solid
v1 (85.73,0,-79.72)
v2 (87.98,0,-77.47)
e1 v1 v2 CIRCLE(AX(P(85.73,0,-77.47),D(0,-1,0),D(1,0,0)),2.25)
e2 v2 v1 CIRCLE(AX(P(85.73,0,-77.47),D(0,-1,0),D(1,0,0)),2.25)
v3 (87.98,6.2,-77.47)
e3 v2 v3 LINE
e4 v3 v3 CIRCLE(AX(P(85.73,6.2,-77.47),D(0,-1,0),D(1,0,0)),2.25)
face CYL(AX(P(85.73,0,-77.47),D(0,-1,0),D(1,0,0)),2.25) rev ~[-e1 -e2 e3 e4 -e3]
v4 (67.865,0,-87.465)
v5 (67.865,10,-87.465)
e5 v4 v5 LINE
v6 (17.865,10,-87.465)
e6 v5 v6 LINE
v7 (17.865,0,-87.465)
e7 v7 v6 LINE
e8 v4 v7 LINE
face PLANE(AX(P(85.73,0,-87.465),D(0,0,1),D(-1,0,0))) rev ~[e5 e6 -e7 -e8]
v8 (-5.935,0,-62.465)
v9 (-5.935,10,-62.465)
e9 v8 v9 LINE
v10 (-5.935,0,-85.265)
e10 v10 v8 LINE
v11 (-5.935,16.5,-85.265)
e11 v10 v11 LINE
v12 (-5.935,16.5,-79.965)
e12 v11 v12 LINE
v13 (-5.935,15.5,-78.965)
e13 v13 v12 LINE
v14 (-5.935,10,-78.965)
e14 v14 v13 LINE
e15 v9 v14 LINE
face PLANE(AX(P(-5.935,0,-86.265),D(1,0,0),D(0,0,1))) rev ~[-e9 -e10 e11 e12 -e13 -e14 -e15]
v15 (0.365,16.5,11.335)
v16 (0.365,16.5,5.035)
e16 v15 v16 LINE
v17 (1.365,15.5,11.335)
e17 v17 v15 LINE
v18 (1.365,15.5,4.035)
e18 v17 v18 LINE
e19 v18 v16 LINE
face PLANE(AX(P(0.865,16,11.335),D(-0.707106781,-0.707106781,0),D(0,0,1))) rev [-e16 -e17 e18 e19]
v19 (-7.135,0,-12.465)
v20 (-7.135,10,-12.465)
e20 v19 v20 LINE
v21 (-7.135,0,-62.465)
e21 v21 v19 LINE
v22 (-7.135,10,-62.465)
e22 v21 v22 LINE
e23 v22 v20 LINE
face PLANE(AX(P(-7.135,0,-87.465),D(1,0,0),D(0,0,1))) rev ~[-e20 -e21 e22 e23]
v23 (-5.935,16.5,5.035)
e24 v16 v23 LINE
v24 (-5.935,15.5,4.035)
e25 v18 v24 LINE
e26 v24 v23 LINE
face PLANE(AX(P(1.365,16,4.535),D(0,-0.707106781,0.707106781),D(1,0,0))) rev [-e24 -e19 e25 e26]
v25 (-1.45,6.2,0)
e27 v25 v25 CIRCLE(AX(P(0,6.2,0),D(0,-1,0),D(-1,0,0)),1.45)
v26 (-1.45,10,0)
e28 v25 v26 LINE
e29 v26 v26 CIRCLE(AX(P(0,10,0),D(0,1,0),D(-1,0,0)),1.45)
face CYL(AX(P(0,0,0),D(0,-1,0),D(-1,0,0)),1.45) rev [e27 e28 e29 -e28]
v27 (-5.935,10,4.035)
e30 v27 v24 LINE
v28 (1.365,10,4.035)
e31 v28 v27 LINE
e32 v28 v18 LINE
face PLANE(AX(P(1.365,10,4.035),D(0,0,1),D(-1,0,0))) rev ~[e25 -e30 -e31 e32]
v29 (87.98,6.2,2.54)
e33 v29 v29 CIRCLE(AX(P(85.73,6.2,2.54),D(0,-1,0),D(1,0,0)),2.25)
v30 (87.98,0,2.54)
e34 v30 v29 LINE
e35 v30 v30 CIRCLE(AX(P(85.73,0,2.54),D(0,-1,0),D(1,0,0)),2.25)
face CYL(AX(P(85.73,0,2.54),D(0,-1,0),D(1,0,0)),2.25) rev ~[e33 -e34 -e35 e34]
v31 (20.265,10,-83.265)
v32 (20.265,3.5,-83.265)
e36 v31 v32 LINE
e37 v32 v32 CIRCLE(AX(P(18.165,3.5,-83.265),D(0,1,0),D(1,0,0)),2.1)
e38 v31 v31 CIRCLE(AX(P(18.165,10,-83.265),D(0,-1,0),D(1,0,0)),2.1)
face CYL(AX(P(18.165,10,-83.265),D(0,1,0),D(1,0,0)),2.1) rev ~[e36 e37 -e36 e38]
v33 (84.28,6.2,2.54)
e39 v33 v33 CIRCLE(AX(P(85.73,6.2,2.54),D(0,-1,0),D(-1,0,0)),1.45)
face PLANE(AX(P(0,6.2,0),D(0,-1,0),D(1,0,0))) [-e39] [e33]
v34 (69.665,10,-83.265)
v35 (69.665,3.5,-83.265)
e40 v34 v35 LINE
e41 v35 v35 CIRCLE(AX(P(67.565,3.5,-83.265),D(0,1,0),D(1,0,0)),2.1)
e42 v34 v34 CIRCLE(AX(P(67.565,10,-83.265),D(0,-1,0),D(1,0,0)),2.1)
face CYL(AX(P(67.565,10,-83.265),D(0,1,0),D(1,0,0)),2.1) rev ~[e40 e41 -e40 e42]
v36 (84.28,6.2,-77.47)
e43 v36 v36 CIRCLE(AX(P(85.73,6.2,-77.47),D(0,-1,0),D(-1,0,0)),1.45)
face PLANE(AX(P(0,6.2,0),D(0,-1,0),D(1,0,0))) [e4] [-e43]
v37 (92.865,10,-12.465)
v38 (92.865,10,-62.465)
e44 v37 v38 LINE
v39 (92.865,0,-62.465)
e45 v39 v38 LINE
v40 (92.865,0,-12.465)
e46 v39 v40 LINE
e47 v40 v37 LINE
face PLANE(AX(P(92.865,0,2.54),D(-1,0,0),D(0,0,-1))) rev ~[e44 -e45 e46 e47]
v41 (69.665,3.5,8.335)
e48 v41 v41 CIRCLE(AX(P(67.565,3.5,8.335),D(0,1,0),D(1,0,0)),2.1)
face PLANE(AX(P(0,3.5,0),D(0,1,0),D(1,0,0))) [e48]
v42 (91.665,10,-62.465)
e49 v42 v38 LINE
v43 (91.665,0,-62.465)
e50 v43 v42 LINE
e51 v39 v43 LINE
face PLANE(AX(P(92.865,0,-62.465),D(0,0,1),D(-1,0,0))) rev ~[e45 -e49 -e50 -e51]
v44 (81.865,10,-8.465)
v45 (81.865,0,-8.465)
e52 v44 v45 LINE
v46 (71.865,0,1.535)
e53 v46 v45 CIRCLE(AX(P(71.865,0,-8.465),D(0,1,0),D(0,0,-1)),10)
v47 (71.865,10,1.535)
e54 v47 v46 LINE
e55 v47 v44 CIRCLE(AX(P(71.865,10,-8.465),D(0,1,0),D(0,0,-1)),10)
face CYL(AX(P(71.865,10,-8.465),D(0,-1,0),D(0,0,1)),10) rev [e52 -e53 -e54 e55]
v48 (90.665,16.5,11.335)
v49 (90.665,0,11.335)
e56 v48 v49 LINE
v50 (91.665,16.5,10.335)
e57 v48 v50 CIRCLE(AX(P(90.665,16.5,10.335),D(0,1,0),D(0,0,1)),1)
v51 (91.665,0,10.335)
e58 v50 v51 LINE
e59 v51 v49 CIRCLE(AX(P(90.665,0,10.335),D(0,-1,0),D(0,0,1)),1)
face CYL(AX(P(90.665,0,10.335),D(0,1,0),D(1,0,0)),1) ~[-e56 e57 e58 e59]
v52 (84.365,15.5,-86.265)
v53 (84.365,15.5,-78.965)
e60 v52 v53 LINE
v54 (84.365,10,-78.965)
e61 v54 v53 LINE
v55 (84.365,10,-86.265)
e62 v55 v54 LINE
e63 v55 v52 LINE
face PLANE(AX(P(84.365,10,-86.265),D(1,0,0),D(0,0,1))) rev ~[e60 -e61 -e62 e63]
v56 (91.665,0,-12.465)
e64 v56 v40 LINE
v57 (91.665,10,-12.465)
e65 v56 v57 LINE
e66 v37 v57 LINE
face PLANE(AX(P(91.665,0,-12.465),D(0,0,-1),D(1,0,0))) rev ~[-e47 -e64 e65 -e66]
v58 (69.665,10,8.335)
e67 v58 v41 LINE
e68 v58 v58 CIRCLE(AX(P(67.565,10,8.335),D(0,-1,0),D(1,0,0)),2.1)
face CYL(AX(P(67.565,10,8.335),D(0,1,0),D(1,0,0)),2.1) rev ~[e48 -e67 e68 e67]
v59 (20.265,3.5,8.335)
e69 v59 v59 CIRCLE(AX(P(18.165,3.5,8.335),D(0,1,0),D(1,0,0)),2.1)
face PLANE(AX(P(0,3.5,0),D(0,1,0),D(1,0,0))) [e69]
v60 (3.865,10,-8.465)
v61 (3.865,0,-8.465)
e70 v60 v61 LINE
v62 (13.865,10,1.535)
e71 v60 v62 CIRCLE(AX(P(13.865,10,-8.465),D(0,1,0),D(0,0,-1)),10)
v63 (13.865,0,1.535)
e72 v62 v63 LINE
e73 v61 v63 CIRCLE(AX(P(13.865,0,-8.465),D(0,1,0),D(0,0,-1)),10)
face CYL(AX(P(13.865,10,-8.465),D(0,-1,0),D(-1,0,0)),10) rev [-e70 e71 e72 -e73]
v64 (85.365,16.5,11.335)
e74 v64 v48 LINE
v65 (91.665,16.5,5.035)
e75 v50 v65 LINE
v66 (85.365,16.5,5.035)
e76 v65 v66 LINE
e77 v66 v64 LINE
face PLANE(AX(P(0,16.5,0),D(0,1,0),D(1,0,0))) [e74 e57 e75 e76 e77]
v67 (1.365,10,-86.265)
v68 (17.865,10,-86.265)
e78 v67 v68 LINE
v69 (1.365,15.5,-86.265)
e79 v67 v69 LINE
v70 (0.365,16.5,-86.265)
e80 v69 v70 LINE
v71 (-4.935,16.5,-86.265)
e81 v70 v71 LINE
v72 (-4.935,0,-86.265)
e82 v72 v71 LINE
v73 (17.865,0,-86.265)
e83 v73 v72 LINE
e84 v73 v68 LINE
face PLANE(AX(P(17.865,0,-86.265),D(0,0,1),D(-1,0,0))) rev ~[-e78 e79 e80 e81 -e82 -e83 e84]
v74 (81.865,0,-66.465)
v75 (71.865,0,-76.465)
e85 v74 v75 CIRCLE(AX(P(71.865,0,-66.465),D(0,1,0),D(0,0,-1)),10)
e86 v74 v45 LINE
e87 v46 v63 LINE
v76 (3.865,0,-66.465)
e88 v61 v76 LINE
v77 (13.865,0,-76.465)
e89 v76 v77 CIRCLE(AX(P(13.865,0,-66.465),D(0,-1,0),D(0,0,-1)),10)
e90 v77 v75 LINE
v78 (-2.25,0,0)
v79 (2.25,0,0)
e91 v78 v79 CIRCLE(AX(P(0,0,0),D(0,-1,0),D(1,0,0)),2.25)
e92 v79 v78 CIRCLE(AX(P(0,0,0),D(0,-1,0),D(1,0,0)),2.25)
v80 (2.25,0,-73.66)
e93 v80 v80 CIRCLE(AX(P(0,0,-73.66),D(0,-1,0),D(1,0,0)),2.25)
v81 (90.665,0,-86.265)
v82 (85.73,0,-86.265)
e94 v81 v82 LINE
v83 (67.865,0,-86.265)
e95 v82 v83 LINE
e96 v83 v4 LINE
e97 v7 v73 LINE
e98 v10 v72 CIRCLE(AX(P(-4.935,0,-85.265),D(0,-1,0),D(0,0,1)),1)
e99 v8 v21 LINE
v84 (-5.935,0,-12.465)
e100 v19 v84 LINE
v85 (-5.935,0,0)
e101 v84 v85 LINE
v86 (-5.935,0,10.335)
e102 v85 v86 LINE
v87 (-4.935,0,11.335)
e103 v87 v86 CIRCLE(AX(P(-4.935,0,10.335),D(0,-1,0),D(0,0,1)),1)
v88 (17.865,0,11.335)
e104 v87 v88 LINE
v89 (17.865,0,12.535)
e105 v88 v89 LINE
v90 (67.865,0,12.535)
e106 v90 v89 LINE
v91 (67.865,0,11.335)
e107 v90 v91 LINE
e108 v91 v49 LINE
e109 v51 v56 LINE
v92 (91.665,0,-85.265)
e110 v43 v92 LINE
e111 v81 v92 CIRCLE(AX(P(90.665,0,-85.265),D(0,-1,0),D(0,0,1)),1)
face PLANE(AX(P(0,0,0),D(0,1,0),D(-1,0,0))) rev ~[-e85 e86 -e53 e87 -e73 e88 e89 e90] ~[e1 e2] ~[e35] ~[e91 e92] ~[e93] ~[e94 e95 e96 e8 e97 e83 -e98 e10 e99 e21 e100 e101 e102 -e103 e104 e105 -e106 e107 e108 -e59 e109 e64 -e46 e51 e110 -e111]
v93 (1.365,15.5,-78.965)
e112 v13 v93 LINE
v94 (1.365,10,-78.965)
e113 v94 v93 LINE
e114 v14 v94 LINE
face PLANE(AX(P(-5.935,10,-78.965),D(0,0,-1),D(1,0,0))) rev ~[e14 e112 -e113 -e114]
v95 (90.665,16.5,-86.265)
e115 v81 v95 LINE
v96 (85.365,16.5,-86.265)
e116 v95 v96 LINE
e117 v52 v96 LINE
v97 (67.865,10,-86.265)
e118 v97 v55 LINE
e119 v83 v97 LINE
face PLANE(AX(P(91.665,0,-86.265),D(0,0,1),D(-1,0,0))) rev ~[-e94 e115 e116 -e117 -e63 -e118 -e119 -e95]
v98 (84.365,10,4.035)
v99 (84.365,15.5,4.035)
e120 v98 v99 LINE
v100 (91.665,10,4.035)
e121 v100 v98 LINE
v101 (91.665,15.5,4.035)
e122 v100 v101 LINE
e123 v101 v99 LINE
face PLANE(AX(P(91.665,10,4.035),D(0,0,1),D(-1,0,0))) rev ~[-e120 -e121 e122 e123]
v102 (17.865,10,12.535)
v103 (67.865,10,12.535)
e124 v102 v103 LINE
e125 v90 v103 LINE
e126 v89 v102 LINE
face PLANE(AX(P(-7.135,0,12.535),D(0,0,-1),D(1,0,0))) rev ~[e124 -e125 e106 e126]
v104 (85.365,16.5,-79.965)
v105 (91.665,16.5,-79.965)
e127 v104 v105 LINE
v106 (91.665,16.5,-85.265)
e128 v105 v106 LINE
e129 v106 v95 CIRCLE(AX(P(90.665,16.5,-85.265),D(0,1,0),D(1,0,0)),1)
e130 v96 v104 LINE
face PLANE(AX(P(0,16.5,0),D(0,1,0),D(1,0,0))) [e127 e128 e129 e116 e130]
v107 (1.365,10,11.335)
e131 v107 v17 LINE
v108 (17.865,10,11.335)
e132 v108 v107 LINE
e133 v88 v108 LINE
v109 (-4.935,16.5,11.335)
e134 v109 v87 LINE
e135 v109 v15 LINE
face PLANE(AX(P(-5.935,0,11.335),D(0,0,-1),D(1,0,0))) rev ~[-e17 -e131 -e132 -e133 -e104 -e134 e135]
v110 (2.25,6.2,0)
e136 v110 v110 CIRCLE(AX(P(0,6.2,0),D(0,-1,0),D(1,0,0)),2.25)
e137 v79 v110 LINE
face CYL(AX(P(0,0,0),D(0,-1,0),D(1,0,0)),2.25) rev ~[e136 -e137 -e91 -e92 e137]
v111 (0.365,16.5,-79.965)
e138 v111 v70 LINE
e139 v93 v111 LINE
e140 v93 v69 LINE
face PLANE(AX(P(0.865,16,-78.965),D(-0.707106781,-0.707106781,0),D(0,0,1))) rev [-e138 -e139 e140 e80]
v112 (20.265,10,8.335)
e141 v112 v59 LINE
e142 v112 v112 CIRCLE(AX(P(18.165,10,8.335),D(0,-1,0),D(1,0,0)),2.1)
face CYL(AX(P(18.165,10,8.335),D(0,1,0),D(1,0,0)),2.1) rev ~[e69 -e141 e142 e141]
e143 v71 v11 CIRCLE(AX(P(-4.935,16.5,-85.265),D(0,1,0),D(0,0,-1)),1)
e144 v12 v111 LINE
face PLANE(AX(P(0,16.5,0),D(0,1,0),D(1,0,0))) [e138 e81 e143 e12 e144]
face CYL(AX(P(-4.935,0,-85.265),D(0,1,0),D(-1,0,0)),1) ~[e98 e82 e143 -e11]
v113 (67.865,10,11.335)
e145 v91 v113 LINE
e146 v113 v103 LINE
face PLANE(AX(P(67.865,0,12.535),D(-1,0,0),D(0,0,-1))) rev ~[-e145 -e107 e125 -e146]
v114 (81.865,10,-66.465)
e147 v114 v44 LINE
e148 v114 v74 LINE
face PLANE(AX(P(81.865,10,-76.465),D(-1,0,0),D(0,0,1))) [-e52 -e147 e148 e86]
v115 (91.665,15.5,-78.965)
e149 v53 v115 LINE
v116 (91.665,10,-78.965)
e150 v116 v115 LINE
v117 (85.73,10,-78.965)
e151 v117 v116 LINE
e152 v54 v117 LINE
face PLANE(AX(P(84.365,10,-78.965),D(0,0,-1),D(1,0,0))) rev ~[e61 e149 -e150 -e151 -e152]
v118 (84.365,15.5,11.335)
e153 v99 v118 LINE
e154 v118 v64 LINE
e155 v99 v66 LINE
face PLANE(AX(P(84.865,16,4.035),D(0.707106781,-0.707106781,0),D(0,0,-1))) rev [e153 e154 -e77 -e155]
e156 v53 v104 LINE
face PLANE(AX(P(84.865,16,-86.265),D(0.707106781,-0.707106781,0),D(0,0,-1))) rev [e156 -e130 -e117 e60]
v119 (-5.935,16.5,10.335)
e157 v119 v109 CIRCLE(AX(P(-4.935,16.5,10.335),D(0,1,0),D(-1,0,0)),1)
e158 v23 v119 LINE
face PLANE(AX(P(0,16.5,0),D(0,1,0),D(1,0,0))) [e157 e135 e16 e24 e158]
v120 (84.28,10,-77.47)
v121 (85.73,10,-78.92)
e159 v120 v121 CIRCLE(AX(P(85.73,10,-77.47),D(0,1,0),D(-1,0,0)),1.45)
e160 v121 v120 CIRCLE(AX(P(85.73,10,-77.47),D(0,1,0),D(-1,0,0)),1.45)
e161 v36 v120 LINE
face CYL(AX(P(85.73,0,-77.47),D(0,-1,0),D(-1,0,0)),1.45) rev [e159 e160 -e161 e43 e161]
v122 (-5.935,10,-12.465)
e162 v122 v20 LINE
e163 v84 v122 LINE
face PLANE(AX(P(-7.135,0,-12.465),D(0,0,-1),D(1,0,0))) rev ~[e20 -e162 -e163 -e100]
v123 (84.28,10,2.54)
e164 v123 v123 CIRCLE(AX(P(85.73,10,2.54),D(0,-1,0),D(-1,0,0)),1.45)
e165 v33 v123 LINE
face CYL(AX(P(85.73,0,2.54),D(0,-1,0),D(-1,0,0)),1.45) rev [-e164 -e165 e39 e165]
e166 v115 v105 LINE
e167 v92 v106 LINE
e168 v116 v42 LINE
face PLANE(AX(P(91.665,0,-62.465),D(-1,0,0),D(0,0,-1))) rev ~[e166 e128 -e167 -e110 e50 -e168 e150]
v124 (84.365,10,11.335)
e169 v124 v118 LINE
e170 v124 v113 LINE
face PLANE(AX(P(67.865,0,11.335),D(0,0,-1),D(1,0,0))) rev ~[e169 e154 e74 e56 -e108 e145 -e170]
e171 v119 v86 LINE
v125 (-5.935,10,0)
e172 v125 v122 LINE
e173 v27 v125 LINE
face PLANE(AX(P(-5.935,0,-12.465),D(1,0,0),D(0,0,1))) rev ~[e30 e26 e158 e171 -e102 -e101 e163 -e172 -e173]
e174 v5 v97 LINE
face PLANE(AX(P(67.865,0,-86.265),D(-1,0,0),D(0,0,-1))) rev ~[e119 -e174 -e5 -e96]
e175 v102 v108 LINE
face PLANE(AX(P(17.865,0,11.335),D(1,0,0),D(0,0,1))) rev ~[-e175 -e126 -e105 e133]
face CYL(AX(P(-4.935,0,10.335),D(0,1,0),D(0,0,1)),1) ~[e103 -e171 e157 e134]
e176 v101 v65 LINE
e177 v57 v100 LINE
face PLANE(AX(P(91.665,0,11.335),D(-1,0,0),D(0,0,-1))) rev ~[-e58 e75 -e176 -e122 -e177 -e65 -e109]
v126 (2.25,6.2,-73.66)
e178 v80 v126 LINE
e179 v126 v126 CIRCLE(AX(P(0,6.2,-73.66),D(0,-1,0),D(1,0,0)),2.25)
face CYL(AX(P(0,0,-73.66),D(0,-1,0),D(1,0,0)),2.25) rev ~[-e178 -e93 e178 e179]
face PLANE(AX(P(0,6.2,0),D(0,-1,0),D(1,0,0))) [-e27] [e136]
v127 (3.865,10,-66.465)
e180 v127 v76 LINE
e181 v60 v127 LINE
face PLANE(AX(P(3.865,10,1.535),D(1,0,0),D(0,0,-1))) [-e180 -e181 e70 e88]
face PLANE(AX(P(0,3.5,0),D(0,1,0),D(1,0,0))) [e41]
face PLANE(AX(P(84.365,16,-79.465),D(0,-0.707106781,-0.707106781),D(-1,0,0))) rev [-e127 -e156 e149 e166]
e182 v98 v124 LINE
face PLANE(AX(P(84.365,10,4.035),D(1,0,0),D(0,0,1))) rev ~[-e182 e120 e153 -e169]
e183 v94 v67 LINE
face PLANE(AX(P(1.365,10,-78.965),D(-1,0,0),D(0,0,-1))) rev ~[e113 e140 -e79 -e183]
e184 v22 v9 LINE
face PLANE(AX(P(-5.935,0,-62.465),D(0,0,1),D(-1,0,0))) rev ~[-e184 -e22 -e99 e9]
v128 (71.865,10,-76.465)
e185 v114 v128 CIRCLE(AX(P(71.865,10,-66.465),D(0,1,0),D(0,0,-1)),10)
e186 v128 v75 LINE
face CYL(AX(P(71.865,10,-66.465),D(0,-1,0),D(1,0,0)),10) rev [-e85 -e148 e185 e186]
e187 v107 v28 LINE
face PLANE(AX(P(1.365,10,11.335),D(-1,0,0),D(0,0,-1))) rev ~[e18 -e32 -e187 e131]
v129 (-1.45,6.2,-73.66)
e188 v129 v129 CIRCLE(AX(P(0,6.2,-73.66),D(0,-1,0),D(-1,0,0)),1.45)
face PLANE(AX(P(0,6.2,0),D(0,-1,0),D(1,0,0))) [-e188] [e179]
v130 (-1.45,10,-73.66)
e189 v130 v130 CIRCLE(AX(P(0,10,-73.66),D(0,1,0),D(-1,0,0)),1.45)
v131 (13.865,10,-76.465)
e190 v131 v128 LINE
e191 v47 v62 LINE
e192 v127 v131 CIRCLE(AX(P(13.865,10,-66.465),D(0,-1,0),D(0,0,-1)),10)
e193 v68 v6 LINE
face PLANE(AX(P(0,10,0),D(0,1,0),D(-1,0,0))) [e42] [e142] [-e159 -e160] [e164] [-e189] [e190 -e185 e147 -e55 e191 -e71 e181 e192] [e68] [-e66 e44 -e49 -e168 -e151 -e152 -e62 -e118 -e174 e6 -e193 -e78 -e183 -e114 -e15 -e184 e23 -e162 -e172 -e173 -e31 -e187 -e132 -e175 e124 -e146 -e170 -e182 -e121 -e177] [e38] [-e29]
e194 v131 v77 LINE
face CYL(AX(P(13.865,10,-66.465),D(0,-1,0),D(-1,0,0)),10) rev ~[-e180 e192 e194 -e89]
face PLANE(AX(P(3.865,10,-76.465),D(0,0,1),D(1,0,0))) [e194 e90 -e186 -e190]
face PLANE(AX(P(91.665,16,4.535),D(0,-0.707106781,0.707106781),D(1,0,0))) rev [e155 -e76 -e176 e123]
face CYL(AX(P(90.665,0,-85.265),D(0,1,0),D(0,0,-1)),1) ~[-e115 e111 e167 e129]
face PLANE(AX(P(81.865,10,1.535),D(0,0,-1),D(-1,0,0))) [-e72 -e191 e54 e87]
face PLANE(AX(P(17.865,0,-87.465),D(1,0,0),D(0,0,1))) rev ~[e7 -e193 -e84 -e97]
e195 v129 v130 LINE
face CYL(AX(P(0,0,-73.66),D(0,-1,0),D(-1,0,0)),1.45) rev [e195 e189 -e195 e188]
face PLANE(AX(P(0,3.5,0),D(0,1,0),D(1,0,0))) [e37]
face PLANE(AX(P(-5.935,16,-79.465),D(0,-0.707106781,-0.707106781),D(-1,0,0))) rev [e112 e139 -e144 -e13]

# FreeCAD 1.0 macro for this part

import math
import FreeCAD as App
import Part
import Sketcher


def edges_at(feature, points):
    """Names of the edges that pass closest to the given points."""
    edges = feature.Shape.Edges
    near = lambda p: min(range(len(edges)), key=lambda i: edges[i].distToShape(Part.Vertex(*p))[0])
    return sorted({f"Edge{near(p) + 1}" for p in points})

doc = App.newDocument("Part")
params = doc.addObject("Spreadsheet::Sheet", "Params")
for row, (alias, value) in enumerate([
    ("sketch1_diameter", "2.9 mm"),
    ("sketch1_width", "100 mm"),
    ("pad1_length", "10 mm"),
    ("sketch2_diameter", "4.5 mm"),
    ("pocket1_length", "6.2 mm"),
    ("sketch3_width", "25 mm"),
    ("sketch3_width2", "1.2 mm"),
    ("fillet_radius", "1 mm"),
    ("sketch4_width", "7.3 mm"),
    ("sketch4_radius", "1 mm"),
    ("pad2_length", "6.5 mm"),
    ("chamfer_size", "1 mm"),
    ("sketch5_width", "78 mm"),
    ("pocket3_length", "10 mm"),
    ("fillet2_radius", "10 mm"),
    ("sketch6_diameter", "4.2 mm"),
    ("pocket4_length", "6.5 mm"),
], start=1):
    params.set(f"A{row}", alias)
    params.set(f"B{row}", "=" + value)
    params.setAlias(f"B{row}", alias)

body = doc.addObject("PartDesign::Body", "Body")

sketch1 = body.newObject("Sketcher::SketchObject", "Sketch")
sketch1.AttachmentSupport = (doc.getObject("XZ_Plane"), [""])
sketch1.MapMode = "FlatFace"
sketch1.addGeometry(Part.LineSegment(App.Vector(-7.1, -87.5, 0), App.Vector(-7.1, 0, 0)), False)
sketch1.addGeometry(Part.LineSegment(App.Vector(-7.1, 0, 0), App.Vector(-7.1, 12.5, 0)), False)
sketch1.addGeometry(Part.LineSegment(App.Vector(-7.1, 12.5, 0), App.Vector(92.9, 12.5, 0)), False)
sketch1.addGeometry(Part.LineSegment(App.Vector(92.9, 12.5, 0), App.Vector(92.9, -87.5, 0)), False)
sketch1.addGeometry(Part.LineSegment(App.Vector(92.9, -87.5, 0), App.Vector(85.7, -87.5, 0)), False)
sketch1.addGeometry(Part.LineSegment(App.Vector(85.7, -87.5, 0), App.Vector(-7.1, -87.5, 0)), False)
sketch1.addGeometry(Part.Circle(App.Vector(85.7, 2.5, 0), App.Vector(0, 0, 1), 1.4), False)
sketch1.addGeometry(Part.Circle(App.Vector(85.7, -77.5, 0), App.Vector(0, 0, 1), 1.4), False)
sketch1.addGeometry(Part.Circle(App.Vector(0, -73.7, 0), App.Vector(0, 0, 1), 1.4), False)
sketch1.addGeometry(Part.Circle(App.Vector(0, 0, 0), App.Vector(0, 0, 1), 1.4), False)
sketch1.addConstraint(Sketcher.Constraint("Coincident", 0, 2, 1, 1))
sketch1.addConstraint(Sketcher.Constraint("Coincident", 1, 2, 2, 1))
sketch1.addConstraint(Sketcher.Constraint("Coincident", 2, 2, 3, 1))
sketch1.addConstraint(Sketcher.Constraint("Coincident", 3, 2, 4, 1))
sketch1.addConstraint(Sketcher.Constraint("Coincident", 4, 2, 5, 1))
sketch1.addConstraint(Sketcher.Constraint("Coincident", 5, 2, 0, 1))
sketch1.addConstraint(Sketcher.Constraint("Vertical", 0))
sketch1.addConstraint(Sketcher.Constraint("Vertical", 1))
sketch1.addConstraint(Sketcher.Constraint("Horizontal", 2))
sketch1.addConstraint(Sketcher.Constraint("Vertical", 3))
sketch1.addConstraint(Sketcher.Constraint("Horizontal", 4))
sketch1.addConstraint(Sketcher.Constraint("Horizontal", 5))
sketch1.addConstraint(Sketcher.Constraint("Coincident", 9, 3, -1, 1))
sketch1.addConstraint(Sketcher.Constraint("Equal", 6, 7))
sketch1.addConstraint(Sketcher.Constraint("Equal", 7, 8))
sketch1.addConstraint(Sketcher.Constraint("Equal", 8, 9))
sketch1.addConstraint(Sketcher.Constraint("PointOnObject", 8, 3, -2))
sketch1.addConstraint(Sketcher.Constraint("PointOnObject", 0, 2, -1))
sketch1.addConstraint(Sketcher.Constraint("Vertical", 6, 3, 7, 3))
sketch1.addConstraint(Sketcher.Constraint("Vertical", 7, 3, 4, 2))
sketch1.addConstraint(Sketcher.Constraint("Equal", 2, 3))
sketch1.addConstraint(Sketcher.Constraint("Diameter", 6, 2.9))
sketch1.addConstraint(Sketcher.Constraint("DistanceX", 2, 1, 2, 2, 100.0))
sketch1.addConstraint(Sketcher.Constraint("DistanceX", -1, 1, 6, 3, 85.73))
sketch1.addConstraint(Sketcher.Constraint("DistanceY", -1, 1, 6, 3, 2.54))
sketch1.addConstraint(Sketcher.Constraint("DistanceY", 8, 3, -1, 1, 73.66))
sketch1.addConstraint(Sketcher.Constraint("DistanceY", 7, 3, 6, 3, 80.01))
sketch1.addConstraint(Sketcher.Constraint("DistanceX", 4, 2, 4, 1, 7.135))
sketch1.addConstraint(Sketcher.Constraint("DistanceY", 0, 1, 0, 2, 87.465))
sketch1.setExpression("Constraints[21]", "Params.sketch1_diameter")
sketch1.setExpression("Constraints[22]", "Params.sketch1_width")
pad1 = body.newObject("PartDesign::Pad", "Pad")
pad1.Profile = sketch1
pad1.setExpression("Length", "Params.pad1_length")
pad1.Reversed = True

sketch2 = body.newObject("Sketcher::SketchObject", "Sketch001")
sketch2.AttachmentSupport = (doc.getObject("XZ_Plane"), [""])
sketch2.MapMode = "FlatFace"
sketch2.addGeometry(Part.Circle(App.Vector(85.7, 2.5, 0), App.Vector(0, 0, 1), 2.2), False)
sketch2.addGeometry(Part.Circle(App.Vector(0, 0, 0), App.Vector(0, 0, 1), 2.2), False)
sketch2.addGeometry(Part.Circle(App.Vector(85.7, -77.5, 0), App.Vector(0, 0, 1), 2.2), False)
sketch2.addGeometry(Part.Circle(App.Vector(0, -73.7, 0), App.Vector(0, 0, 1), 2.2), False)
sketch2.addConstraint(Sketcher.Constraint("Coincident", 1, 3, -1, 1))
sketch2.addConstraint(Sketcher.Constraint("Equal", 0, 1))
sketch2.addConstraint(Sketcher.Constraint("Equal", 1, 2))
sketch2.addConstraint(Sketcher.Constraint("Equal", 2, 3))
sketch2.addConstraint(Sketcher.Constraint("PointOnObject", 3, 3, -2))
sketch2.addConstraint(Sketcher.Constraint("Vertical", 0, 3, 2, 3))
sketch2.addConstraint(Sketcher.Constraint("Diameter", 0, 4.5))
sketch2.addConstraint(Sketcher.Constraint("DistanceY", 3, 3, 0, 3, 76.2))
sketch2.addConstraint(Sketcher.Constraint("DistanceX", -1, 1, 0, 3, 85.73))
sketch2.addConstraint(Sketcher.Constraint("DistanceY", -1, 1, 0, 3, 2.54))
sketch2.addConstraint(Sketcher.Constraint("DistanceY", 2, 3, -1, 1, 77.47))
sketch2.setExpression("Constraints[6]", "Params.sketch2_diameter")
pocket1 = body.newObject("PartDesign::Pocket", "Pocket")
pocket1.Profile = sketch2
pocket1.setExpression("Length", "Params.pocket1_length")

sketch3 = body.newObject("Sketcher::SketchObject", "Sketch002")
sketch3.AttachmentSupport = (doc.getObject("XZ_Plane"), [""])
sketch3.MapMode = "FlatFace"
sketch3.addGeometry(Part.LineSegment(App.Vector(67.9, 11.3, 0), App.Vector(91.7, 11.3, 0)), False)
sketch3.addGeometry(Part.LineSegment(App.Vector(91.7, 11.3, 0), App.Vector(91.7, -12.5, 0)), False)
sketch3.addGeometry(Part.LineSegment(App.Vector(91.7, -12.5, 0), App.Vector(92.9, -12.5, 0)), False)
sketch3.addGeometry(Part.LineSegment(App.Vector(92.9, -12.5, 0), App.Vector(92.9, 12.5, 0)), False)
sketch3.addGeometry(Part.LineSegment(App.Vector(92.9, 12.5, 0), App.Vector(67.9, 12.5, 0)), False)
sketch3.addGeometry(Part.LineSegment(App.Vector(67.9, 12.5, 0), App.Vector(67.9, 11.3, 0)), False)
sketch3.addGeometry(Part.LineSegment(App.Vector(17.9, -86.3, 0), App.Vector(-5.9, -86.3, 0)), False)
sketch3.addGeometry(Part.LineSegment(App.Vector(-5.9, -86.3, 0), App.Vector(-5.9, -62.5, 0)), False)
sketch3.addGeometry(Part.LineSegment(App.Vector(-5.9, -62.5, 0), App.Vector(-7.1, -62.5, 0)), False)
sketch3.addGeometry(Part.LineSegment(App.Vector(-7.1, -62.5, 0), App.Vector(-7.1, -87.5, 0)), False)
sketch3.addGeometry(Part.LineSegment(App.Vector(-7.1, -87.5, 0), App.Vector(17.9, -87.5, 0)), False)
sketch3.addGeometry(Part.LineSegment(App.Vector(17.9, -87.5, 0), App.Vector(17.9, -86.3, 0)), False)
sketch3.addGeometry(Part.LineSegment(App.Vector(92.9, -87.5, 0), App.Vector(92.9, -62.5, 0)), False)
sketch3.addGeometry(Part.LineSegment(App.Vector(92.9, -62.5, 0), App.Vector(91.7, -62.5, 0)), False)
sketch3.addGeometry(Part.LineSegment(App.Vector(91.7, -62.5, 0), App.Vector(91.7, -86.3, 0)), False)
sketch3.addGeometry(Part.LineSegment(App.Vector(91.7, -86.3, 0), App.Vector(67.9, -86.3, 0)), False)
sketch3.addGeometry(Part.LineSegment(App.Vector(67.9, -86.3, 0), App.Vector(67.9, -87.5, 0)), False)
sketch3.addGeometry(Part.LineSegment(App.Vector(67.9, -87.5, 0), App.Vector(92.9, -87.5, 0)), False)
sketch3.addGeometry(Part.LineSegment(App.Vector(17.9, 11.3, 0), App.Vector(17.9, 12.5, 0)), False)
sketch3.addGeometry(Part.LineSegment(App.Vector(17.9, 12.5, 0), App.Vector(-7.1, 12.5, 0)), False)
sketch3.addGeometry(Part.LineSegment(App.Vector(-7.1, 12.5, 0), App.Vector(-7.1, -12.5, 0)), False)
sketch3.addGeometry(Part.LineSegment(App.Vector(-7.1, -12.5, 0), App.Vector(-5.9, -12.5, 0)), False)
sketch3.addGeometry(Part.LineSegment(App.Vector(-5.9, -12.5, 0), App.Vector(-5.9, 11.3, 0)), False)
sketch3.addGeometry(Part.LineSegment(App.Vector(-5.9, 11.3, 0), App.Vector(17.9, 11.3, 0)), False)
sketch3.addConstraint(Sketcher.Constraint("Coincident", 0, 2, 1, 1))
sketch3.addConstraint(Sketcher.Constraint("Coincident", 1, 2, 2, 1))
sketch3.addConstraint(Sketcher.Constraint("Coincident", 2, 2, 3, 1))
sketch3.addConstraint(Sketcher.Constraint("Coincident", 3, 2, 4, 1))
sketch3.addConstraint(Sketcher.Constraint("Coincident", 4, 2, 5, 1))
sketch3.addConstraint(Sketcher.Constraint("Coincident", 5, 2, 0, 1))
sketch3.addConstraint(Sketcher.Constraint("Coincident", 6, 2, 7, 1))
sketch3.addConstraint(Sketcher.Constraint("Coincident", 7, 2, 8, 1))
sketch3.addConstraint(Sketcher.Constraint("Coincident", 8, 2, 9, 1))
sketch3.addConstraint(Sketcher.Constraint("Coincident", 9, 2, 10, 1))
sketch3.addConstraint(Sketcher.Constraint("Coincident", 10, 2, 11, 1))
sketch3.addConstraint(Sketcher.Constraint("Coincident", 11, 2, 6, 1))
sketch3.addConstraint(Sketcher.Constraint("Coincident", 12, 2, 13, 1))
sketch3.addConstraint(Sketcher.Constraint("Coincident", 13, 2, 14, 1))
sketch3.addConstraint(Sketcher.Constraint("Coincident", 14, 2, 15, 1))
sketch3.addConstraint(Sketcher.Constraint("Coincident", 15, 2, 16, 1))
sketch3.addConstraint(Sketcher.Constraint("Coincident", 16, 2, 17, 1))
sketch3.addConstraint(Sketcher.Constraint("Coincident", 17, 2, 12, 1))
sketch3.addConstraint(Sketcher.Constraint("Coincident", 18, 2, 19, 1))
sketch3.addConstraint(Sketcher.Constraint("Coincident", 19, 2, 20, 1))
sketch3.addConstraint(Sketcher.Constraint("Coincident", 20, 2, 21, 1))
sketch3.addConstraint(Sketcher.Constraint("Coincident", 21, 2, 22, 1))
sketch3.addConstraint(Sketcher.Constraint("Coincident", 22, 2, 23, 1))
sketch3.addConstraint(Sketcher.Constraint("Coincident", 23, 2, 18, 1))
sketch3.addConstraint(Sketcher.Constraint("Horizontal", 0))
sketch3.addConstraint(Sketcher.Constraint("Vertical", 1))
sketch3.addConstraint(Sketcher.Constraint("Horizontal", 2))
sketch3.addConstraint(Sketcher.Constraint("Vertical", 3))
sketch3.addConstraint(Sketcher.Constraint("Horizontal", 4))
sketch3.addConstraint(Sketcher.Constraint("Vertical", 5))
sketch3.addConstraint(Sketcher.Constraint("Horizontal", 6))
sketch3.addConstraint(Sketcher.Constraint("Vertical", 7))
sketch3.addConstraint(Sketcher.Constraint("Horizontal", 8))
sketch3.addConstraint(Sketcher.Constraint("Vertical", 9))
sketch3.addConstraint(Sketcher.Constraint("Horizontal", 10))
sketch3.addConstraint(Sketcher.Constraint("Vertical", 11))
sketch3.addConstraint(Sketcher.Constraint("Vertical", 12))
sketch3.addConstraint(Sketcher.Constraint("Horizontal", 13))
sketch3.addConstraint(Sketcher.Constraint("Vertical", 14))
sketch3.addConstraint(Sketcher.Constraint("Horizontal", 15))
sketch3.addConstraint(Sketcher.Constraint("Vertical", 16))
sketch3.addConstraint(Sketcher.Constraint("Horizontal", 17))
sketch3.addConstraint(Sketcher.Constraint("Vertical", 18))
sketch3.addConstraint(Sketcher.Constraint("Horizontal", 19))
sketch3.addConstraint(Sketcher.Constraint("Vertical", 20))
sketch3.addConstraint(Sketcher.Constraint("Horizontal", 21))
sketch3.addConstraint(Sketcher.Constraint("Vertical", 22))
sketch3.addConstraint(Sketcher.Constraint("Horizontal", 23))
sketch3.addConstraint(Sketcher.Constraint("Horizontal", 8, 2, 12, 2))
sketch3.addConstraint(Sketcher.Constraint("Horizontal", 11, 2, 14, 2))
sketch3.addConstraint(Sketcher.Constraint("Horizontal", 10, 2, 16, 2))
sketch3.addConstraint(Sketcher.Constraint("Horizontal", 4, 2, 18, 2))
sketch3.addConstraint(Sketcher.Constraint("Horizontal", 2, 2, 20, 2))
sketch3.addConstraint(Sketcher.Constraint("Horizontal", 5, 2, 22, 2))
sketch3.addConstraint(Sketcher.Constraint("Vertical", 3, 2, 12, 2))
sketch3.addConstraint(Sketcher.Constraint("Vertical", 1, 2, 13, 2))
sketch3.addConstraint(Sketcher.Constraint("Vertical", 5, 2, 15, 2))
sketch3.addConstraint(Sketcher.Constraint("Vertical", 11, 2, 18, 2))
sketch3.addConstraint(Sketcher.Constraint("Vertical", 9, 2, 19, 2))
sketch3.addConstraint(Sketcher.Constraint("Vertical", 7, 2, 21, 2))
sketch3.addConstraint(Sketcher.Constraint("Equal", 0, 6))
sketch3.addConstraint(Sketcher.Constraint("Equal", 2, 8))
sketch3.addConstraint(Sketcher.Constraint("Equal", 23, 1))
sketch3.addConstraint(Sketcher.Constraint("Equal", 19, 3))
sketch3.addConstraint(Sketcher.Constraint("Equal", 1, 7))
sketch3.addConstraint(Sketcher.Constraint("Equal", 3, 9))
sketch3.addConstraint(Sketcher.Constraint("DistanceX", 4, 2, 4, 1, 25.0))
sketch3.addConstraint(Sketcher.Constraint("DistanceX", 2, 1, 2, 2, 1.2))
sketch3.addConstraint(Sketcher.Constraint("DistanceY", 7, 2, 4, 2, 75.0))
sketch3.addConstraint(Sketcher.Constraint("DistanceX", 8, 2, 5, 2, 75.0))
sketch3.addConstraint(Sketcher.Constraint("DistanceX", -1, 1, 0, 2, 91.665))
sketch3.addConstraint(Sketcher.Constraint("DistanceY", -1, 1, 0, 2, 11.335))
sketch3.setExpression("Constraints[66]", "Params.sketch3_width")
sketch3.setExpression("Constraints[67]", "Params.sketch3_width2")
pocket2 = body.newObject("PartDesign::Pocket", "Pocket001")
pocket2.Profile = sketch3
pocket2.Type = "ThroughAll"
pocket2.Midplane = True
doc.recompute()

fillet = body.newObject("PartDesign::Fillet", "Fillet")
fillet.Base = (pocket2, edges_at(pocket2, [
    (-5.935, 5, -86.265),
    (91.665, 5, -86.265),
    (-5.935, 5, 11.335),
    (91.665, 5, 11.335),
]))
fillet.setExpression("Radius", "Params.fillet_radius")

sketch4 = body.newObject("Sketcher::SketchObject", "Sketch003")
sketch4.AttachmentSupport = (doc.getObject("XZ_Plane"), [""])
sketch4.MapMode = "FlatFace"
sketch4.AttachmentOffset = App.Placement(App.Vector(0, 0, -10), App.Rotation())
sketch4.addGeometry(Part.LineSegment(App.Vector(84.4, 11.3, 0), App.Vector(90.7, 11.3, 0)), False)
sketch4.addGeometry(Part.ArcOfCircle(Part.Circle(App.Vector(90.7, 10.3, 0), App.Vector(0, 0, 1), 1), math.radians(0), math.radians(90)), False)
sketch4.addGeometry(Part.LineSegment(App.Vector(91.7, 10.3, 0), App.Vector(91.7, 4, 0)), False)
sketch4.addGeometry(Part.LineSegment(App.Vector(91.7, 4, 0), App.Vector(84.4, 4, 0)), False)
sketch4.addGeometry(Part.LineSegment(App.Vector(84.4, 4, 0), App.Vector(84.4, 11.3, 0)), False)
sketch4.addGeometry(Part.LineSegment(App.Vector(-4.9, 11.3, 0), App.Vector(1.4, 11.3, 0)), False)
sketch4.addGeometry(Part.LineSegment(App.Vector(1.4, 11.3, 0), App.Vector(1.4, 4, 0)), False)
sketch4.addGeometry(Part.LineSegment(App.Vector(1.4, 4, 0), App.Vector(-5.9, 4, 0)), False)
sketch4.addGeometry(Part.LineSegment(App.Vector(-5.9, 4, 0), App.Vector(-5.9, 10.3, 0)), False)
sketch4.addGeometry(Part.ArcOfCircle(Part.Circle(App.Vector(-4.9, 10.3, 0), App.Vector(0, 0, 1), 1), math.radians(90), math.radians(180)), False)
sketch4.addGeometry(Part.LineSegment(App.Vector(84.4, -79, 0), App.Vector(91.7, -79, 0)), False)
sketch4.addGeometry(Part.LineSegment(App.Vector(91.7, -79, 0), App.Vector(91.7, -85.3, 0)), False)
sketch4.addGeometry(Part.ArcOfCircle(Part.Circle(App.Vector(90.7, -85.3, 0), App.Vector(0, 0, 1), 1), math.radians(-90), math.radians(0)), False)
sketch4.addGeometry(Part.LineSegment(App.Vector(90.7, -86.3, 0), App.Vector(84.4, -86.3, 0)), False)
sketch4.addGeometry(Part.LineSegment(App.Vector(84.4, -86.3, 0), App.Vector(84.4, -79, 0)), False)
sketch4.addGeometry(Part.LineSegment(App.Vector(-5.9, -85.3, 0), App.Vector(-5.9, -79, 0)), False)
sketch4.addGeometry(Part.LineSegment(App.Vector(-5.9, -79, 0), App.Vector(1.4, -79, 0)), False)
sketch4.addGeometry(Part.LineSegment(App.Vector(1.4, -79, 0), App.Vector(1.4, -86.3, 0)), False)
sketch4.addGeometry(Part.LineSegment(App.Vector(1.4, -86.3, 0), App.Vector(-4.9, -86.3, 0)), False)
sketch4.addGeometry(Part.ArcOfCircle(Part.Circle(App.Vector(-4.9, -85.3, 0), App.Vector(0, 0, 1), 1), math.radians(180), math.radians(270)), False)
sketch4.addConstraint(Sketcher.Constraint("Tangent", 0, 2, 1, 2))
sketch4.addConstraint(Sketcher.Constraint("Tangent", 1, 1, 2, 1))
sketch4.addConstraint(Sketcher.Constraint("Coincident", 2, 2, 3, 1))
sketch4.addConstraint(Sketcher.Constraint("Coincident", 3, 2, 4, 1))
sketch4.addConstraint(Sketcher.Constraint("Coincident", 4, 2, 0, 1))
sketch4.addConstraint(Sketcher.Constraint("Coincident", 5, 2, 6, 1))
sketch4.addConstraint(Sketcher.Constraint("Coincident", 6, 2, 7, 1))
sketch4.addConstraint(Sketcher.Constraint("Coincident", 7, 2, 8, 1))
sketch4.addConstraint(Sketcher.Constraint("Tangent", 8, 2, 9, 2))
sketch4.addConstraint(Sketcher.Constraint("Tangent", 9, 1, 5, 1))
sketch4.addConstraint(Sketcher.Constraint("Coincident", 10, 2, 11, 1))
sketch4.addConstraint(Sketcher.Constraint("Tangent", 11, 2, 12, 2))
sketch4.addConstraint(Sketcher.Constraint("Tangent", 12, 1, 13, 1))
sketch4.addConstraint(Sketcher.Constraint("Coincident", 13, 2, 14, 1))
sketch4.addConstraint(Sketcher.Constraint("Coincident", 14, 2, 10, 1))
sketch4.addConstraint(Sketcher.Constraint("Coincident", 15, 2, 16, 1))
sketch4.addConstraint(Sketcher.Constraint("Coincident", 16, 2, 17, 1))
sketch4.addConstraint(Sketcher.Constraint("Coincident", 17, 2, 18, 1))
sketch4.addConstraint(Sketcher.Constraint("Tangent", 18, 2, 19, 2))
sketch4.addConstraint(Sketcher.Constraint("Tangent", 19, 1, 15, 1))
sketch4.addConstraint(Sketcher.Constraint("Horizontal", 0))
sketch4.addConstraint(Sketcher.Constraint("Vertical", 2))
sketch4.addConstraint(Sketcher.Constraint("Horizontal", 3))
sketch4.addConstraint(Sketcher.Constraint("Vertical", 4))
sketch4.addConstraint(Sketcher.Constraint("Horizontal", 5))
sketch4.addConstraint(Sketcher.Constraint("Vertical", 6))
sketch4.addConstraint(Sketcher.Constraint("Horizontal", 7))
sketch4.addConstraint(Sketcher.Constraint("Vertical", 8))
sketch4.addConstraint(Sketcher.Constraint("Horizontal", 10))
sketch4.addConstraint(Sketcher.Constraint("Vertical", 11))
sketch4.addConstraint(Sketcher.Constraint("Horizontal", 13))
sketch4.addConstraint(Sketcher.Constraint("Vertical", 14))
sketch4.addConstraint(Sketcher.Constraint("Vertical", 15))
sketch4.addConstraint(Sketcher.Constraint("Horizontal", 16))
sketch4.addConstraint(Sketcher.Constraint("Vertical", 17))
sketch4.addConstraint(Sketcher.Constraint("Horizontal", 18))
sketch4.addConstraint(Sketcher.Constraint("Equal", 1, 9))
sketch4.addConstraint(Sketcher.Constraint("Equal", 9, 12))
sketch4.addConstraint(Sketcher.Constraint("Equal", 12, 19))
sketch4.addConstraint(Sketcher.Constraint("Horizontal", 1, 3, 9, 3))
sketch4.addConstraint(Sketcher.Constraint("Horizontal", 12, 3, 19, 3))
sketch4.addConstraint(Sketcher.Constraint("Horizontal", 3, 2, 6, 2))
sketch4.addConstraint(Sketcher.Constraint("Horizontal", 14, 2, 15, 2))
sketch4.addConstraint(Sketcher.Constraint("Vertical", 1, 3, 12, 3))
sketch4.addConstraint(Sketcher.Constraint("Vertical", 9, 3, 19, 3))
sketch4.addConstraint(Sketcher.Constraint("Vertical", 4, 2, 13, 2))
sketch4.addConstraint(Sketcher.Constraint("Vertical", 6, 2, 16, 2))
sketch4.addConstraint(Sketcher.Constraint("Equal", 0, 5))
sketch4.addConstraint(Sketcher.Constraint("Equal", 18, 2))
sketch4.addConstraint(Sketcher.Constraint("Equal", 8, 11))
sketch4.addConstraint(Sketcher.Constraint("DistanceX", 3, 2, 3, 1, 7.3))
sketch4.addConstraint(Sketcher.Constraint("Radius", 1, 1.0))
sketch4.addConstraint(Sketcher.Constraint("DistanceX", 5, 2, 4, 2, 83.0))
sketch4.addConstraint(Sketcher.Constraint("DistanceY", 10, 2, 2, 2, 83.0))
sketch4.addConstraint(Sketcher.Constraint("DistanceX", -1, 1, 1, 3, 90.665))
sketch4.addConstraint(Sketcher.Constraint("DistanceY", -1, 1, 1, 3, 10.335))
sketch4.setExpression("Constraints[50]", "Params.sketch4_width")
sketch4.setExpression("Constraints[51]", "Params.sketch4_radius")
pad2 = body.newObject("PartDesign::Pad", "Pad001")
pad2.Profile = sketch4
pad2.setExpression("Length", "Params.pad2_length")
pad2.Reversed = True
doc.recompute()

chamfer = body.newObject("PartDesign::Chamfer", "Chamfer")
chamfer.Base = (pad2, edges_at(pad2, [
    (-2.285, 16.5, 4.035),
    (1.365, 16.5, 7.685),
    (1.365, 16.5, -82.615),
    (-2.285, 16.5, -78.965),
    (84.365, 16.5, -82.615),
    (88.015, 16.5, -78.965),
    (88.015, 16.5, 4.035),
    (84.365, 16.5, 7.685),
]))
chamfer.setExpression("Size", "Params.chamfer_size")

sketch5 = body.newObject("Sketcher::SketchObject", "Sketch004")
sketch5.AttachmentSupport = (doc.getObject("XZ_Plane"), [""])
sketch5.MapMode = "FlatFace"
sketch5.AttachmentOffset = App.Placement(App.Vector(0, 0, -10), App.Rotation())
sketch5.addGeometry(Part.LineSegment(App.Vector(82, -76, 0), App.Vector(4, -76, 0)), False)
sketch5.addGeometry(Part.LineSegment(App.Vector(4, -76, 0), App.Vector(4, 2, 0)), False)
sketch5.addGeometry(Part.LineSegment(App.Vector(4, 2, 0), App.Vector(82, 2, 0)), False)
sketch5.addGeometry(Part.LineSegment(App.Vector(82, 2, 0), App.Vector(82, -76, 0)), False)
sketch5.addConstraint(Sketcher.Constraint("Coincident", 0, 2, 1, 1))
sketch5.addConstraint(Sketcher.Constraint("Coincident", 1, 2, 2, 1))
sketch5.addConstraint(Sketcher.Constraint("Coincident", 2, 2, 3, 1))
sketch5.addConstraint(Sketcher.Constraint("Coincident", 3, 2, 0, 1))
sketch5.addConstraint(Sketcher.Constraint("Horizontal", 0))
sketch5.addConstraint(Sketcher.Constraint("Vertical", 1))
sketch5.addConstraint(Sketcher.Constraint("Horizontal", 2))
sketch5.addConstraint(Sketcher.Constraint("Vertical", 3))
sketch5.addConstraint(Sketcher.Constraint("Equal", 2, 1))
sketch5.addConstraint(Sketcher.Constraint("DistanceX", 0, 2, 0, 1, 78.0))
sketch5.addConstraint(Sketcher.Constraint("DistanceX", -1, 1, 0, 2, 3.865))
sketch5.addConstraint(Sketcher.Constraint("DistanceY", 0, 2, -1, 1, 76.465))
sketch5.setExpression("Constraints[9]", "Params.sketch5_width")
pocket3 = body.newObject("PartDesign::Pocket", "Pocket002")
pocket3.Profile = sketch5
pocket3.setExpression("Length", "Params.pocket3_length")
pocket3.Reversed = True
doc.recompute()

fillet2 = body.newObject("PartDesign::Fillet", "Fillet001")
fillet2.Base = (pocket3, edges_at(pocket3, [
    (3.865, 5, -76.465),
    (81.865, 5, -76.465),
    (81.865, 5, 1.535),
    (3.865, 5, 1.535),
]))
fillet2.setExpression("Radius", "Params.fillet2_radius")

sketch6 = body.newObject("Sketcher::SketchObject", "Sketch005")
sketch6.AttachmentSupport = (doc.getObject("XZ_Plane"), [""])
sketch6.MapMode = "FlatFace"
sketch6.AttachmentOffset = App.Placement(App.Vector(0, 0, -10), App.Rotation())
sketch6.addGeometry(Part.Circle(App.Vector(18.2, 8.3, 0), App.Vector(0, 0, 1), 2.1), False)
sketch6.addGeometry(Part.Circle(App.Vector(67.6, 8.3, 0), App.Vector(0, 0, 1), 2.1), False)
sketch6.addGeometry(Part.Circle(App.Vector(67.6, -83.3, 0), App.Vector(0, 0, 1), 2.1), False)
sketch6.addGeometry(Part.Circle(App.Vector(18.2, -83.3, 0), App.Vector(0, 0, 1), 2.1), False)
sketch6.addConstraint(Sketcher.Constraint("Equal", 0, 1))
sketch6.addConstraint(Sketcher.Constraint("Equal", 1, 2))
sketch6.addConstraint(Sketcher.Constraint("Equal", 2, 3))
sketch6.addConstraint(Sketcher.Constraint("Horizontal", 0, 3, 1, 3))
sketch6.addConstraint(Sketcher.Constraint("Horizontal", 2, 3, 3, 3))
sketch6.addConstraint(Sketcher.Constraint("Vertical", 1, 3, 2, 3))
sketch6.addConstraint(Sketcher.Constraint("Vertical", 0, 3, 3, 3))
sketch6.addConstraint(Sketcher.Constraint("Diameter", 0, 4.2))
sketch6.addConstraint(Sketcher.Constraint("DistanceX", 0, 3, 1, 3, 49.4))
sketch6.addConstraint(Sketcher.Constraint("DistanceY", 2, 3, 1, 3, 91.6))
sketch6.addConstraint(Sketcher.Constraint("DistanceX", -1, 1, 0, 3, 18.165))
sketch6.addConstraint(Sketcher.Constraint("DistanceY", -1, 1, 0, 3, 8.335))
sketch6.setExpression("Constraints[7]", "Params.sketch6_diameter")
pocket4 = body.newObject("PartDesign::Pocket", "Pocket003")
pocket4.Profile = sketch6
pocket4.setExpression("Length", "Params.pocket4_length")
pocket4.Reversed = True

doc.recompute()
